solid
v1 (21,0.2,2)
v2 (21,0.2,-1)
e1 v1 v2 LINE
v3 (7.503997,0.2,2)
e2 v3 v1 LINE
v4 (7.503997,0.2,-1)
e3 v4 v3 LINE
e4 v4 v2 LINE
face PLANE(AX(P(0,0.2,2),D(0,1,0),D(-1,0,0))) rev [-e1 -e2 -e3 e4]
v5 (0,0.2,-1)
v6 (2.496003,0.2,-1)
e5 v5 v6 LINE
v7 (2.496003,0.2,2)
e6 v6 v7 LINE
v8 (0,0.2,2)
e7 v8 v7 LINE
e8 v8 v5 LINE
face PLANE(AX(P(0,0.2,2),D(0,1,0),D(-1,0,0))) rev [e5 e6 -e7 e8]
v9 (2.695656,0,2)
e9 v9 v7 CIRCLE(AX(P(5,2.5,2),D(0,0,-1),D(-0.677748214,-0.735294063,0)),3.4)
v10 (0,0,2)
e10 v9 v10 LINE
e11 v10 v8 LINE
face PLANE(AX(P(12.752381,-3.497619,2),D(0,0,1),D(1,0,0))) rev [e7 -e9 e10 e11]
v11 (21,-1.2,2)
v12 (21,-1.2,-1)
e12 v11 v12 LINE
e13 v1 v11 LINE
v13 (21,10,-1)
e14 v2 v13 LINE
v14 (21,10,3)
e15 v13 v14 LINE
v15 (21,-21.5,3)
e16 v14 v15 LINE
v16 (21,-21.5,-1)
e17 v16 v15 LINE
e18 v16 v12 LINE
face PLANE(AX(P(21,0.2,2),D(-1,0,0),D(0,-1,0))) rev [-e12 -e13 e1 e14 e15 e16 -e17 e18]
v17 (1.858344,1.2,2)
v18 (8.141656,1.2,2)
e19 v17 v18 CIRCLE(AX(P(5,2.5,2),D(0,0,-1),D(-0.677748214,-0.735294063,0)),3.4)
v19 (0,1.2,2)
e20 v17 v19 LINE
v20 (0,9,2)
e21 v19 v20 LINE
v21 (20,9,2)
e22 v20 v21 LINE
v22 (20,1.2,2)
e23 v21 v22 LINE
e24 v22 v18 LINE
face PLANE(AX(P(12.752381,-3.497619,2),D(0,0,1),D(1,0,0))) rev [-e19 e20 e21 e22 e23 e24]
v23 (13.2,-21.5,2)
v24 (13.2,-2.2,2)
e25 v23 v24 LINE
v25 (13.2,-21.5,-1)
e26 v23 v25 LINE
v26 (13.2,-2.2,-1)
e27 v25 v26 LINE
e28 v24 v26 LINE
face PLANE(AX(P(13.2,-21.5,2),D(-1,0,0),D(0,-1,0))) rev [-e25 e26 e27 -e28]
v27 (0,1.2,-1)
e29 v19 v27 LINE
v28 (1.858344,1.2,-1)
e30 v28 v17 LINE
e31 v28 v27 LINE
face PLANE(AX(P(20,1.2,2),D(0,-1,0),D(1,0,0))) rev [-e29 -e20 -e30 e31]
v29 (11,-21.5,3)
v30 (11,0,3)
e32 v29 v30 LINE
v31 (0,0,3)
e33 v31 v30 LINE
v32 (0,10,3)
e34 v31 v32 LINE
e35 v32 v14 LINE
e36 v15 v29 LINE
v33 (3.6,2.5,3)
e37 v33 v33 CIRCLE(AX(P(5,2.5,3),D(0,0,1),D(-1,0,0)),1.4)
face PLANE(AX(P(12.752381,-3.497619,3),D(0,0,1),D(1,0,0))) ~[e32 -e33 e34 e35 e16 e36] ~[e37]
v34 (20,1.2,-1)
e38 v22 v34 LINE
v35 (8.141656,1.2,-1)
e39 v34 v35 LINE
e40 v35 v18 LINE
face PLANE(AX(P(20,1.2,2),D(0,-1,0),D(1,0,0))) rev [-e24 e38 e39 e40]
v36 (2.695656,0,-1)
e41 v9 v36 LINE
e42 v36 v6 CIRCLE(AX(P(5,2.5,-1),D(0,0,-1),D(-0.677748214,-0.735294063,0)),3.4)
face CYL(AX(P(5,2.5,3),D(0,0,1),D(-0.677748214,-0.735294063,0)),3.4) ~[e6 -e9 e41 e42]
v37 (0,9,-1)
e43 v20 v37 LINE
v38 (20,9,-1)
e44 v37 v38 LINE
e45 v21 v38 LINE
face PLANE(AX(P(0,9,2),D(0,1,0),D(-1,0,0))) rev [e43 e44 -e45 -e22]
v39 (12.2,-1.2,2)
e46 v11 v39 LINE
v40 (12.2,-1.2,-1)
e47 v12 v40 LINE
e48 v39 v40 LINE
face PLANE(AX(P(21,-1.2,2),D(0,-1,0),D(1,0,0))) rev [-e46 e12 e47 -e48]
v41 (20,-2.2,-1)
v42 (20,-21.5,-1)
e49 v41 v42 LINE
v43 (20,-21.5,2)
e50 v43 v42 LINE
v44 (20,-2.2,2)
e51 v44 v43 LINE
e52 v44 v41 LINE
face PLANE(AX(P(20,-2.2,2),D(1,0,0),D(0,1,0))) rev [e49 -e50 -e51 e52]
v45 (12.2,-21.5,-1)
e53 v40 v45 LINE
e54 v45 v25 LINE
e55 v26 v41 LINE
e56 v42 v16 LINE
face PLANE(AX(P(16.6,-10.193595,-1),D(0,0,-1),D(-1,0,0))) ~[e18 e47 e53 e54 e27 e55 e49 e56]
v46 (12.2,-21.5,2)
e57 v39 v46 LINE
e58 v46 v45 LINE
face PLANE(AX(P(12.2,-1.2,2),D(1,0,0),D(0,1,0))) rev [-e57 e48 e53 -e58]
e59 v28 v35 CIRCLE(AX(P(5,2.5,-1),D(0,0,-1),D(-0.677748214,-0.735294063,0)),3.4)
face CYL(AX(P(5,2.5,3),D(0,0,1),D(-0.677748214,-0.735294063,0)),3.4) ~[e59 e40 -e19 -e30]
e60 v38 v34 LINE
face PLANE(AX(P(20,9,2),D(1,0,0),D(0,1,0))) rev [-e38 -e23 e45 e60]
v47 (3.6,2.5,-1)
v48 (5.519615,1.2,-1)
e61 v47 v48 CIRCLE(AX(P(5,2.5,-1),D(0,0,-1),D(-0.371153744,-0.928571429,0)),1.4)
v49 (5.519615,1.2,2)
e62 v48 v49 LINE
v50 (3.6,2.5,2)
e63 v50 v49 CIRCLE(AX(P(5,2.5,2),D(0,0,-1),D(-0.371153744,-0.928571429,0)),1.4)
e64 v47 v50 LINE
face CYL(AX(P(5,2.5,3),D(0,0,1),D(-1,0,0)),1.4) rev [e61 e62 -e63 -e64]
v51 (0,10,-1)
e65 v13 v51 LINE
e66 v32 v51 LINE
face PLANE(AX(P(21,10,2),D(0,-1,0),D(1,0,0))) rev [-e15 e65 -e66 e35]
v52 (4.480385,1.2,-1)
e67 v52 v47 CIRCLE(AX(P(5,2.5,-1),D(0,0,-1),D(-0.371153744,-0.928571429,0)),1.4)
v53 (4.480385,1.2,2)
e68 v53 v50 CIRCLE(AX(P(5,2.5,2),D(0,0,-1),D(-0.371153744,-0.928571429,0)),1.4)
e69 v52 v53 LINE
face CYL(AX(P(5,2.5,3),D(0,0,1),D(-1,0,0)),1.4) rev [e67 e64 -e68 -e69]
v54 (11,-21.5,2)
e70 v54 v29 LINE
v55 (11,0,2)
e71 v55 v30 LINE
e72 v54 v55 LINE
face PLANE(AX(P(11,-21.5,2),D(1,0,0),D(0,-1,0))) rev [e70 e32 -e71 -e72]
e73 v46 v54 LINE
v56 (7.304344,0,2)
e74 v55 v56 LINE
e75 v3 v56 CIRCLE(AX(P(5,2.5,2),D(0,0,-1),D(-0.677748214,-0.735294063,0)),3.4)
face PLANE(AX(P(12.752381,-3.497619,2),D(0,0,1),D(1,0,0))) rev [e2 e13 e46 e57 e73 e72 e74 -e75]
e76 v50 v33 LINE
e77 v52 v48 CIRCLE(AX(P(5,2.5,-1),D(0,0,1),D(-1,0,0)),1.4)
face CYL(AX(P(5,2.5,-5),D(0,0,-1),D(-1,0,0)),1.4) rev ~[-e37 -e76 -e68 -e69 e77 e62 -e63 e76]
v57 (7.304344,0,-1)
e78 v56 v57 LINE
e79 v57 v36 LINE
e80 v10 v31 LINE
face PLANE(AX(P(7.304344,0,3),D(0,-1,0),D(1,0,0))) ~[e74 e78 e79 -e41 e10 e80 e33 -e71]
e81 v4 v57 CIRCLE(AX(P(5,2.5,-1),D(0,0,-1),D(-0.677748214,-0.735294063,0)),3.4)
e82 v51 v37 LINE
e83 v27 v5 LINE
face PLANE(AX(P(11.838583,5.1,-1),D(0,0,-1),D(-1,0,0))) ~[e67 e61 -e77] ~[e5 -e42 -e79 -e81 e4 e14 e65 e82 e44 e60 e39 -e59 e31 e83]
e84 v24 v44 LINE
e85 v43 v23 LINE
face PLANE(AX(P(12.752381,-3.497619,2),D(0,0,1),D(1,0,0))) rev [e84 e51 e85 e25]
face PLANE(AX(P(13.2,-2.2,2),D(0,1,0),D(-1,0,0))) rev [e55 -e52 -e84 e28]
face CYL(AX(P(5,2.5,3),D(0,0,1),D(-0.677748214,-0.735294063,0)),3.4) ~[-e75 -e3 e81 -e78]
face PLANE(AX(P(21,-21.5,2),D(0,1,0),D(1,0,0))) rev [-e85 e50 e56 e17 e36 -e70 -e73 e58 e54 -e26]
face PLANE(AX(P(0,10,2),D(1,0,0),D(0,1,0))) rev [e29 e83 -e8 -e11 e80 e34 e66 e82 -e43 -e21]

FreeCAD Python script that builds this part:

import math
import FreeCAD as App
import Part
import Sketcher
from FreeCAD import Vector
Q = App.Units.Quantity


def add_polygon(sketch, points):
    """Adds a closed chain of lines whose ends are joined by coincident constraints."""
    first, n = sketch.GeometryCount, len(points)
    for a, b in zip(points, points[1:] + points[:1]):
        sketch.addGeometry(Part.LineSegment(App.Vector(*a, 0), App.Vector(*b, 0)), False)
    for i in range(n):
        sketch.addConstraint(Sketcher.Constraint("Coincident", first + i, 2, first + (i + 1) % n, 1))

doc = App.newDocument("Part")
params = doc.addObject("Spreadsheet::Sheet", "Params")
for row, (alias, value) in enumerate([
    ("sketch1_diameter", "2.8 mm"),
    ("pad1_length", "10 mm"),
    ("sketch2_width", "21 mm"),
    ("sketch2_width2", "20 mm"),
    ("sketch2_width3", "8.8 mm"),
    ("sketch2_height", "9.8 mm"),
    ("sketch2_height2", "20.3 mm"),
    ("pad2_length", "3 mm"),
    ("sketch3_diameter", "2.8 mm"),
    ("sketch3_radius", "3.4 mm"),
    ("pad3_length", "4 mm"),
    ("sketch4_width", "11 mm"),
    ("sketch4_width2", "21 mm"),
    ("sketch4_height", "31.5 mm"),
    ("pad4_length", "1 mm"),
], start=1):
    params.set(f"A{row}", alias)
    params.set(f"B{row}", "=" + value)
    params.setAlias(f"B{row}", alias)

body = doc.addObject("PartDesign::Body", "Body")

# Sketch on XY plane
sketch1 = body.newObject("Sketcher::SketchObject", "Sketch")
sketch1.AttachmentSupport = (doc.getObject("XY_Plane"), [""])
sketch1.MapMode = "FlatFace"
sketch1.AttachmentOffset = App.Placement(Vector(0, 0, -5), App.Rotation())
sketch1.addGeometry(Part.Circle(Vector(-5, 2.5, 0), Vector(0, 0, 1), 1.4), False)
sketch1.addConstraint(Sketcher.Constraint("Diameter", 0, Q("2.8 mm")))
sketch1.addConstraint(Sketcher.Constraint("DistanceX", 0, 3, -1, 1, Q("5 mm")))
sketch1.addConstraint(Sketcher.Constraint("DistanceY", -1, 1, 0, 3, Q("2.5 mm")))
sketch1.setExpression("Constraints[0]", "Params.sketch1_diameter")
pad1 = body.newObject("PartDesign::Pad", "Pad")
pad1.Profile = sketch1
pad1.setExpression("Length", "Params.pad1_length")
body2 = doc.addObject("PartDesign::Body", "Body001")
body2.AllowCompound = True

# Sketch on XY plane
sketch2 = body2.newObject("Sketcher::SketchObject", "Sketch001")
sketch2.AttachmentSupport = (doc.getObject("XY_Plane001"), [""])
sketch2.MapMode = "FlatFace"
sketch2.AttachmentOffset = App.Placement(Vector(0, 0, 10), App.Rotation())
add_polygon(sketch2, [(0, 10), (-21, 10), (-21, 0.2), (0, 0.2), (0, 1.2), (-20, 1.2), (-20, 9), (0, 9)])  # lines 0-7
add_polygon(sketch2, [(-12.2, -1.2), (-21, -1.2), (-21, -21.5), (-20, -21.5), (-20, -2.2), (-13.2, -2.2), (-13.2, -21.5), (-12.2, -21.5)])  # lines 8-15
sketch2.addConstraint(Sketcher.Constraint("Horizontal", 0))
sketch2.addConstraint(Sketcher.Constraint("Vertical", 1))
sketch2.addConstraint(Sketcher.Constraint("Horizontal", 2))
sketch2.addConstraint(Sketcher.Constraint("Vertical", 3))
sketch2.addConstraint(Sketcher.Constraint("Horizontal", 4))
sketch2.addConstraint(Sketcher.Constraint("Vertical", 5))
sketch2.addConstraint(Sketcher.Constraint("Horizontal", 6))
sketch2.addConstraint(Sketcher.Constraint("Vertical", 7))
sketch2.addConstraint(Sketcher.Constraint("Horizontal", 8))
sketch2.addConstraint(Sketcher.Constraint("Vertical", 9))
sketch2.addConstraint(Sketcher.Constraint("Horizontal", 10))
sketch2.addConstraint(Sketcher.Constraint("Vertical", 11))
sketch2.addConstraint(Sketcher.Constraint("Horizontal", 12))
sketch2.addConstraint(Sketcher.Constraint("Vertical", 13))
sketch2.addConstraint(Sketcher.Constraint("Horizontal", 14))
sketch2.addConstraint(Sketcher.Constraint("Vertical", 15))
sketch2.addConstraint(Sketcher.Constraint("PointOnObject", 2, 2, -2))
sketch2.addConstraint(Sketcher.Constraint("PointOnObject", 6, 2, -2))
sketch2.addConstraint(Sketcher.Constraint("Horizontal", 10, 2, 13, 2))
sketch2.addConstraint(Sketcher.Constraint("Vertical", 1, 2, 8, 2))
sketch2.addConstraint(Sketcher.Constraint("Vertical", 5, 2, 10, 2))
sketch2.addConstraint(Sketcher.Constraint("Equal", 10, 14))
sketch2.addConstraint(Sketcher.Constraint("Equal", 14, 3))
sketch2.addConstraint(Sketcher.Constraint("Equal", 3, 7))
sketch2.addConstraint(Sketcher.Constraint("DistanceX", 0, 2, 0, 1, Q("21 mm")))
sketch2.addConstraint(Sketcher.Constraint("DistanceX", 4, 2, 4, 1, Q("20 mm")))
sketch2.addConstraint(Sketcher.Constraint("DistanceX", 8, 2, 8, 1, Q("8.8 mm")))
sketch2.addConstraint(Sketcher.Constraint("DistanceY", 1, 2, 1, 1, Q("9.8 mm")))
sketch2.addConstraint(Sketcher.Constraint("DistanceY", 9, 2, 9, 1, Q("20.3 mm")))
sketch2.addConstraint(Sketcher.Constraint("DistanceY", 11, 1, 11, 2, Q("19.3 mm")))
sketch2.addConstraint(Sketcher.Constraint("DistanceY", -1, 1, 0, 2, Q("10 mm")))
sketch2.addConstraint(Sketcher.Constraint("DistanceY", 8, 2, -1, 1, Q("1.2 mm")))
sketch2.setExpression("Constraints[40]", "Params.sketch2_width")
sketch2.setExpression("Constraints[41]", "Params.sketch2_width2")
sketch2.setExpression("Constraints[42]", "Params.sketch2_width3")
sketch2.setExpression("Constraints[43]", "Params.sketch2_height")
sketch2.setExpression("Constraints[44]", "Params.sketch2_height2")
pad2 = body2.newObject("PartDesign::Pad", "Pad001")
pad2.Profile = sketch2
pad2.setExpression("Length", "Params.pad2_length")
pad2.Reversed = True
body3 = doc.addObject("PartDesign::Body", "Body002")
body3.AllowCompound = True
doc.recompute()

body2.Placement = App.Placement(Vector(0, 0, -8), App.Rotation(Vector(0, 0, 1), 0))
boolean = body3.newObject("PartDesign::Boolean", "Boolean")
boolean.Type = "Fuse"
boolean.addObjects([body2])
body4 = doc.addObject("PartDesign::Body", "Body003")

# Sketch on XY plane
sketch3 = body4.newObject("Sketcher::SketchObject", "Sketch002")
sketch3.AttachmentSupport = (doc.getObject("XY_Plane003"), [""])
sketch3.MapMode = "FlatFace"
sketch3.AttachmentOffset = App.Placement(Vector(0, 0, 10), App.Rotation())
sketch3.addGeometry(Part.ArcOfCircle(Part.Circle(Vector(-5, 2.5, 0), Vector(0, 0, 1), 3.4), math.radians(-47), math.radians(227)), False)
sketch3.addGeometry(Part.LineSegment(Vector(-7.3, 0, 0), Vector(-2.7, 0, 0)), False)
sketch3.addGeometry(Part.Circle(Vector(-5, 2.5, 0), Vector(0, 0, 1), 1.4), False)
sketch3.addConstraint(Sketcher.Constraint("Coincident", 0, 1, 1, 2))
sketch3.addConstraint(Sketcher.Constraint("Coincident", 1, 1, 0, 2))
sketch3.addConstraint(Sketcher.Constraint("Horizontal", 1))
sketch3.addConstraint(Sketcher.Constraint("Coincident", 2, 3, 0, 3))
sketch3.addConstraint(Sketcher.Constraint("PointOnObject", 0, 1, -1))
sketch3.addConstraint(Sketcher.Constraint("Diameter", 2, Q("2.8 mm")))
sketch3.addConstraint(Sketcher.Constraint("Radius", 0, Q("3.4 mm")))
sketch3.addConstraint(Sketcher.Constraint("DistanceX", 0, 3, -1, 1, Q("5 mm")))
sketch3.addConstraint(Sketcher.Constraint("DistanceY", -1, 1, 0, 3, Q("2.5 mm")))
sketch3.setExpression("Constraints[5]", "Params.sketch3_diameter")
sketch3.setExpression("Constraints[6]", "Params.sketch3_radius")
pad3 = body4.newObject("PartDesign::Pad", "Pad002")
pad3.Profile = sketch3
pad3.setExpression("Length", "Params.pad3_length")
pad3.Reversed = True
body5 = doc.addObject("PartDesign::Body", "Body004")
doc.recompute()

body4.Placement = App.Placement(Vector(0, 0, -7), App.Rotation(Vector(0, 0, 1), 0))
boolean2 = body5.newObject("PartDesign::Boolean", "Boolean001")
boolean2.Type = "Fuse"
boolean2.addObjects([body4])
body6 = doc.addObject("PartDesign::Body", "Body005")

# Sketch on XY plane
sketch4 = body6.newObject("Sketcher::SketchObject", "Sketch003")
sketch4.AttachmentSupport = (doc.getObject("XY_Plane005"), [""])
sketch4.MapMode = "FlatFace"
add_polygon(sketch4, [(-11, 0), (0, 0), (0, 10), (-21, 10), (-21, -22), (-11, -22)])  # lines 0-5
sketch4.addConstraint(Sketcher.Constraint("Horizontal", 0))
sketch4.addConstraint(Sketcher.Constraint("Vertical", 1))
sketch4.addConstraint(Sketcher.Constraint("Horizontal", 2))
sketch4.addConstraint(Sketcher.Constraint("Vertical", 3))
sketch4.addConstraint(Sketcher.Constraint("Horizontal", 4))
sketch4.addConstraint(Sketcher.Constraint("Vertical", 5))
sketch4.addConstraint(Sketcher.Constraint("Coincident", 0, 2, -1, 1))
sketch4.addConstraint(Sketcher.Constraint("Equal", 4, 1))
sketch4.addConstraint(Sketcher.Constraint("DistanceX", 0, 1, 0, 2, Q("11 mm")))
sketch4.addConstraint(Sketcher.Constraint("DistanceX", 2, 2, 2, 1, Q("21 mm")))
sketch4.addConstraint(Sketcher.Constraint("DistanceY", 3, 2, 3, 1, Q("31.5 mm")))
sketch4.setExpression("Constraints[14]", "Params.sketch4_width")
sketch4.setExpression("Constraints[15]", "Params.sketch4_width2")
sketch4.setExpression("Constraints[16]", "Params.sketch4_height")
pad4 = body6.newObject("PartDesign::Pad", "Pad003")
pad4.Profile = sketch4
pad4.setExpression("Length", "Params.pad4_length")
body7 = doc.addObject("PartDesign::Body", "Body006")
doc.recompute()

body6.Placement = App.Placement(Vector(0, 0, 2), App.Rotation(Vector(0, 0, 1), 0))
boolean3 = body7.newObject("PartDesign::Boolean", "Boolean002")
boolean3.Type = "Fuse"
boolean3.addObjects([body6])
doc.recompute()

boolean4 = body7.newObject("PartDesign::Boolean", "Boolean003")
boolean4.Type = "Fuse"
boolean4.addObjects([body3])
doc.recompute()

boolean5 = body7.newObject("PartDesign::Boolean", "Boolean004")
boolean5.Type = "Fuse"
boolean5.addObjects([body5])
doc.recompute()

boolean6 = body7.newObject("PartDesign::Boolean", "Boolean005")
boolean6.Type = "Cut"
boolean6.addObjects([body])
body8 = doc.addObject("PartDesign::Body", "Body007")
doc.recompute()

mirroring = doc.addObject("Part::Mirroring", "Mirroring")
mirroring.Source = body7
mirroring.Base = Vector(0, 0, 0)
mirroring.Normal = Vector(1, 0, 0)
body8.BaseFeature = mirroring
doc.recompute()
body7.Visibility = False
mirroring.Visibility = False

doc.recompute()
